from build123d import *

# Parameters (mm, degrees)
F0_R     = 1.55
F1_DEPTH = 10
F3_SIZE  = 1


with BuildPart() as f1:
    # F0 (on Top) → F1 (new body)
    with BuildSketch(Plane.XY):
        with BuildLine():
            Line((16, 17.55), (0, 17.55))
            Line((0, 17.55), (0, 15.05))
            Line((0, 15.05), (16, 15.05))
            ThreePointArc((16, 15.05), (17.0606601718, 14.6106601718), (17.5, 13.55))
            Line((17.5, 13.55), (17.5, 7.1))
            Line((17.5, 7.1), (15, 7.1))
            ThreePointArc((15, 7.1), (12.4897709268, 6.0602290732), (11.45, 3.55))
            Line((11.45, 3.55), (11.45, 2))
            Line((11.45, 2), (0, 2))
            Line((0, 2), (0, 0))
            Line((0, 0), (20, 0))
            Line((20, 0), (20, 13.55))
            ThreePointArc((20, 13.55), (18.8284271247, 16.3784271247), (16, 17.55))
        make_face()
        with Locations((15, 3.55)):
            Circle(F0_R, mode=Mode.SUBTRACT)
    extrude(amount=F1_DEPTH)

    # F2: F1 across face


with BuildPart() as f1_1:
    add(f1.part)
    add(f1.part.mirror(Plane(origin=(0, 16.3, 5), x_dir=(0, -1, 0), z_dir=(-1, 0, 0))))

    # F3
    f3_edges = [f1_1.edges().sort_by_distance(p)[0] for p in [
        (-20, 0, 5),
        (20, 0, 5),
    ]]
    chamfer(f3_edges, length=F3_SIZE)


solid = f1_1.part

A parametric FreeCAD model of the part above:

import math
import FreeCAD as App
import Part
import Sketcher
from FreeCAD import Vector


def edges_at(feature, points):
    """Names of the edges that pass closest to the given points."""
    edges = feature.Shape.Edges
    near = lambda p: min(range(len(edges)), key=lambda i: edges[i].distToShape(Part.Vertex(*p))[0])
    return sorted({f"Edge{near(p) + 1}" for p in points})

doc = App.newDocument("Part")
params = doc.addObject("Spreadsheet::Sheet", "Params")
for row, (alias, value) in enumerate([
    ("sketch1_radius", "4 mm"),
    ("sketch1_diameter", "3.1 mm"),
    ("sketch1_radius2", "1.5 mm"),
    ("sketch1_width", "16 mm"),
    ("sketch1_height", "2 mm"),
    ("pad1_length", "10 mm"),
    ("chamfer_size", "1 mm"),
], start=1):
    params.set(f"A{row}", alias)
    params.set(f"B{row}", "=" + value)
    params.setAlias(f"B{row}", alias)

body = doc.addObject("PartDesign::Body", "Body")

# Sketch on XY plane
sketch1 = doc.addObject("Sketcher::SketchObject", "Sketch")
body.addObject(sketch1)
sketch1.AttachmentSupport = (doc.XY_Plane, [""])
sketch1.MapMode = "FlatFace"
sketch1.addGeometry([
    Part.LineSegment(Vector(16, 17.6, 0), Vector(0, 17.6, 0)),  # 0
    Part.LineSegment(Vector(0, 17.6, 0), Vector(0, 15.1, 0)),  # 1
    Part.LineSegment(Vector(0, 15.1, 0), Vector(16, 15.1, 0)),  # 2
    Part.ArcOfCircle(Part.Circle(Vector(16, 13.6, 0), Vector(0, 0, 1), 1.5), math.radians(0), math.radians(90)),  # 3
    Part.LineSegment(Vector(17.5, 13.6, 0), Vector(17.5, 7.1, 0)),  # 4
    Part.LineSegment(Vector(17.5, 7.1, 0), Vector(15, 7.1, 0)),  # 5
    Part.ArcOfCircle(Part.Circle(Vector(15, 3.5, 0), Vector(0, 0, 1), 3.5), math.radians(90), math.radians(180)),  # 6
    Part.LineSegment(Vector(11.4, 3.5, 0), Vector(11.4, 2, 0)),  # 7
    Part.LineSegment(Vector(11.4, 2, 0), Vector(0, 2, 0)),  # 8
    Part.LineSegment(Vector(0, 2, 0), Vector(0, 0, 0)),  # 9
    Part.LineSegment(Vector(0, 0, 0), Vector(20, 0, 0)),  # 10
    Part.LineSegment(Vector(20, 0, 0), Vector(20, 13.6, 0)),  # 11
    Part.ArcOfCircle(Part.Circle(Vector(16, 13.6, 0), Vector(0, 0, 1), 4), math.radians(0), math.radians(90)),  # 12
    Part.Circle(Vector(15, 3.5, 0), Vector(0, 0, 1), 1.6),  # 13
], False)
sketch1.addConstraint([
    Sketcher.Constraint("Coincident", 0, 2, 1, 1),
    Sketcher.Constraint("Coincident", 1, 2, 2, 1),
    Sketcher.Constraint("Tangent", 2, 2, 3, 2),
    Sketcher.Constraint("Tangent", 3, 1, 4, 1),
    Sketcher.Constraint("Coincident", 4, 2, 5, 1),
    Sketcher.Constraint("Tangent", 5, 2, 6, 1),
    Sketcher.Constraint("Tangent", 6, 2, 7, 1),
    Sketcher.Constraint("Coincident", 7, 2, 8, 1),
    Sketcher.Constraint("Coincident", 8, 2, 9, 1),
    Sketcher.Constraint("Coincident", 9, 2, 10, 1),
    Sketcher.Constraint("Coincident", 10, 2, 11, 1),
    Sketcher.Constraint("Tangent", 11, 2, 12, 1),
    Sketcher.Constraint("Tangent", 12, 2, 0, 1),
    Sketcher.Constraint("Horizontal", 0),
    Sketcher.Constraint("Vertical", 1),
    Sketcher.Constraint("Horizontal", 2),
    Sketcher.Constraint("Vertical", 4),
    Sketcher.Constraint("Horizontal", 5),
    Sketcher.Constraint("Vertical", 7),
    Sketcher.Constraint("Horizontal", 8),
    Sketcher.Constraint("Vertical", 9),
    Sketcher.Constraint("Horizontal", 10),
    Sketcher.Constraint("Vertical", 11),
    Sketcher.Constraint("Coincident", 9, 2, -1, 1),
    Sketcher.Constraint("Coincident", 12, 3, 3, 3),
    Sketcher.Constraint("Coincident", 13, 3, 6, 3),
    Sketcher.Constraint("PointOnObject", 0, 2, -2),
    Sketcher.Constraint("Equal", 5, 1),
    Sketcher.Constraint("Radius", 12, 4.0),
    Sketcher.Constraint("Diameter", 13, 3.1),
    Sketcher.Constraint("Radius", 3, 1.5),
    Sketcher.Constraint("DistanceX", 0, 2, 0, 1, 16.0),
    Sketcher.Constraint("DistanceY", 9, 2, 9, 1, 2.0),
    Sketcher.Constraint("Radius", 6, 3.55),
    Sketcher.Constraint("DistanceY", 6, 3, 3, 3, 10.0),
    Sketcher.Constraint("DistanceY", 7, 2, 7, 1, 1.55),
])
sketch1.setExpression("Constraints[28]", "Params.sketch1_radius")
sketch1.setExpression("Constraints[29]", "Params.sketch1_diameter")
sketch1.setExpression("Constraints[30]", "Params.sketch1_radius2")
sketch1.setExpression("Constraints[31]", "Params.sketch1_width")
sketch1.setExpression("Constraints[32]", "Params.sketch1_height")
pad1 = doc.addObject("PartDesign::Pad", "Pad")
body.addObject(pad1)
pad1.Profile = sketch1
pad1.setExpression("Length", "Params.pad1_length")
body2 = doc.addObject("PartDesign::Body", "Body001")
doc.recompute()

body2.BaseFeature = body
doc.recompute()

mirroring = doc.addObject("Part::Mirroring", "Mirroring")
mirroring.Source = body
mirroring.Base = Vector(0, 16.3, 5)
mirroring.Normal = Vector(-1, 0, 0)
body3 = doc.addObject("PartDesign::Body", "Body002")
body3.BaseFeature = mirroring
boolean = doc.addObject("PartDesign::Boolean", "Boolean")
body2.addObject(boolean)
boolean.Type = "Fuse"
boolean.addObjects([body3])
doc.recompute()

chamfer = doc.addObject("PartDesign::Chamfer", "Chamfer")
body2.addObject(chamfer)
chamfer.Base = (boolean, edges_at(boolean, [(-20, 0, 5), (20, 0, 5)]))
chamfer.setExpression("Size", "Params.chamfer_size")
mirroring.Visibility = False

doc.recompute()
